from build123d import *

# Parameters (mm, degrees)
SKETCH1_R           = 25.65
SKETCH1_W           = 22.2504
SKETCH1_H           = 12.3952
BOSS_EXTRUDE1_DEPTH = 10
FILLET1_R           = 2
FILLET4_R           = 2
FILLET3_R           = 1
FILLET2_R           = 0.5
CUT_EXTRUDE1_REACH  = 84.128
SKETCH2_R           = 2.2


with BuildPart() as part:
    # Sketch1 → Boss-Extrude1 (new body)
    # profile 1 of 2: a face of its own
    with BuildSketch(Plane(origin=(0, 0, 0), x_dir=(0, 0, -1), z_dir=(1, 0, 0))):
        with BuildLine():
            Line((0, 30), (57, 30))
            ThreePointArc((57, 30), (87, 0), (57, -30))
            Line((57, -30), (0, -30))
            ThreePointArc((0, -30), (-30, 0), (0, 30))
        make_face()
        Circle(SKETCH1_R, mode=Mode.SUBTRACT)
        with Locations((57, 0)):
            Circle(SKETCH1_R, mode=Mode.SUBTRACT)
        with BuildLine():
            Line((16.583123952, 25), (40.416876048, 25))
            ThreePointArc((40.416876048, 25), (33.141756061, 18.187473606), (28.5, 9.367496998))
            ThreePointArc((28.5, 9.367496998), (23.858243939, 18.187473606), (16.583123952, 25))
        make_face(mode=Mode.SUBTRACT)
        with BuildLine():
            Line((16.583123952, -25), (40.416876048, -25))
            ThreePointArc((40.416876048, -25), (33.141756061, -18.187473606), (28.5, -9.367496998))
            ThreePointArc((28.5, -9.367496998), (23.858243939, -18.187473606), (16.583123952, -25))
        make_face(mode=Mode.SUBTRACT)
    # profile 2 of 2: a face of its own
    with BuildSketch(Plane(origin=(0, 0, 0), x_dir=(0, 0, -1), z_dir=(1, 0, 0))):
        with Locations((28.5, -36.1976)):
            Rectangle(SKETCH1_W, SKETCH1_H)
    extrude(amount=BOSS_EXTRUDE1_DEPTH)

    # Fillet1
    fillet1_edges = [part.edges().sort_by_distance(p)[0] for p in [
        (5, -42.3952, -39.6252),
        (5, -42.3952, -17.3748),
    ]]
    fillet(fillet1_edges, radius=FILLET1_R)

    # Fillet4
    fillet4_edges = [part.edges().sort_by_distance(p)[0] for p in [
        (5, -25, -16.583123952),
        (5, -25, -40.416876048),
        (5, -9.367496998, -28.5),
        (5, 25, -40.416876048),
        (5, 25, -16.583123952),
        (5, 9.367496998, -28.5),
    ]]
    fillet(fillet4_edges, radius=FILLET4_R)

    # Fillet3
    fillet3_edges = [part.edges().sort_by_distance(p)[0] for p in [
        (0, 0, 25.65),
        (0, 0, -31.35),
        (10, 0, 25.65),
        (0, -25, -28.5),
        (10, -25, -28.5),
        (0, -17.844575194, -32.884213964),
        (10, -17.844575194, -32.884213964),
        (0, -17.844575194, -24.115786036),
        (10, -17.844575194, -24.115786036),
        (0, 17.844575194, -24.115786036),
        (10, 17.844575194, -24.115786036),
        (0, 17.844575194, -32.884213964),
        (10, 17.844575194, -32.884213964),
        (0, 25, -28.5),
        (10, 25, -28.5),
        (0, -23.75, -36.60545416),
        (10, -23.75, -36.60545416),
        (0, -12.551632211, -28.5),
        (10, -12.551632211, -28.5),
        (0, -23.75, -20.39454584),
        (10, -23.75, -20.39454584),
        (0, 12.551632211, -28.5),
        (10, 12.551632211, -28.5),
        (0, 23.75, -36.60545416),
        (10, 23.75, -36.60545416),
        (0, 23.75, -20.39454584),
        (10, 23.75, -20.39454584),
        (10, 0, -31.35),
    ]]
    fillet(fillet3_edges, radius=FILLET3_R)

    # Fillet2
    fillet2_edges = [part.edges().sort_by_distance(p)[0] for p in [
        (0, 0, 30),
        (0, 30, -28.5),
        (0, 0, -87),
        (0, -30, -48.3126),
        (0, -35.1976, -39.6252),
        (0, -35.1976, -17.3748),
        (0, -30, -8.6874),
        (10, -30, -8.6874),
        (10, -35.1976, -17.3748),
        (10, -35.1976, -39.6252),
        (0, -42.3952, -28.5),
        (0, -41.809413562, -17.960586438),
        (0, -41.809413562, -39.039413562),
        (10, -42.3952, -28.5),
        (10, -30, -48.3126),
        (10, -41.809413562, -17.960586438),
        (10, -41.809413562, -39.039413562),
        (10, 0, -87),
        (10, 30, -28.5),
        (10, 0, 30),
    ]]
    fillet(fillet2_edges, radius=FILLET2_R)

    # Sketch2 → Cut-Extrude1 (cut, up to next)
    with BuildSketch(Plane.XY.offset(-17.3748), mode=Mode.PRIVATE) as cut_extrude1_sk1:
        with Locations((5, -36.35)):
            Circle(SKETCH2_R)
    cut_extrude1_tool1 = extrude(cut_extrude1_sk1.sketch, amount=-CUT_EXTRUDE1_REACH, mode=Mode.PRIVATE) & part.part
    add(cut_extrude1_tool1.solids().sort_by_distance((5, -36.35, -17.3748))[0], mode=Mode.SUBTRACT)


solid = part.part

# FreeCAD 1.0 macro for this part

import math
import FreeCAD as App
import Part
import Sketcher
Q = App.Units.Quantity


def edges_at(feature, points):
    """Names of the edges that pass closest to the given points."""
    edges = feature.Shape.Edges
    near = lambda p: min(range(len(edges)), key=lambda i: edges[i].distToShape(Part.Vertex(*p))[0])
    return sorted({f"Edge{near(p) + 1}" for p in points})

doc = App.newDocument("Part")
body = doc.addObject("PartDesign::Body", "Body")

# Sketch on YZ plane
sketch1 = doc.addObject("Sketcher::SketchObject", "Sketch")
body.addObject(sketch1)
sketch1.AttachmentSupport = (doc.YZ_Plane, [""])
sketch1.MapMode = "FlatFace"
sketch1.addGeometry([
    Part.LineSegment(App.Vector(30, -57, 0), App.Vector(30, 0, 0)),  # 0
    Part.ArcOfCircle(Part.Circle(App.Vector(0, 0, 0), App.Vector(0, 0, 1), 30), math.radians(0), math.radians(180)),  # 1
    Part.LineSegment(App.Vector(-30, 0, 0), App.Vector(-30, -17, 0)),  # 2
    Part.LineSegment(App.Vector(-30, -17, 0), App.Vector(-42, -17, 0)),  # 3
    Part.LineSegment(App.Vector(-42, -17, 0), App.Vector(-42, -40, 0)),  # 4
    Part.LineSegment(App.Vector(-42, -40, 0), App.Vector(-30, -40, 0)),  # 5
    Part.LineSegment(App.Vector(-30, -40, 0), App.Vector(-30, -57, 0)),  # 6
    Part.ArcOfCircle(Part.Circle(App.Vector(0, -57, 0), App.Vector(0, 0, 1), 30), math.radians(180), math.radians(360)),  # 7
    Part.ArcOfCircle(Part.Circle(App.Vector(0, 0, 0), App.Vector(0, 0, 1), 30), math.radians(-146), math.radians(-108)),  # 8
    Part.ArcOfCircle(Part.Circle(App.Vector(0, -57, 0), App.Vector(0, 0, 1), 30), math.radians(108), math.radians(146)),  # 9
    Part.LineSegment(App.Vector(-25, -40, 0), App.Vector(-25, -17, 0)),  # 10
    Part.Circle(App.Vector(0, -57, 0), App.Vector(0, 0, 1), 26),  # 11
    Part.Circle(App.Vector(0, 0, 0), App.Vector(0, 0, 1), 26),  # 12
    Part.LineSegment(App.Vector(25, -17, 0), App.Vector(25, -40, 0)),  # 13
    Part.ArcOfCircle(Part.Circle(App.Vector(0, -57, 0), App.Vector(0, 0, 1), 30), math.radians(34), math.radians(72)),  # 14
    Part.ArcOfCircle(Part.Circle(App.Vector(0, 0, 0), App.Vector(0, 0, 1), 30), math.radians(-72), math.radians(-34)),  # 15
], False)
sketch1.addConstraint([
    Sketcher.Constraint("Tangent", 0, 2, 1, 1),
    Sketcher.Constraint("Tangent", 1, 2, 2, 1),
    Sketcher.Constraint("Coincident", 2, 2, 3, 1),
    Sketcher.Constraint("Coincident", 3, 2, 4, 1),
    Sketcher.Constraint("Coincident", 4, 2, 5, 1),
    Sketcher.Constraint("Coincident", 5, 2, 6, 1),
    Sketcher.Constraint("Tangent", 6, 2, 7, 1),
    Sketcher.Constraint("Tangent", 7, 2, 0, 1),
    Sketcher.Constraint("Coincident", 8, 2, 9, 1),
    Sketcher.Constraint("Coincident", 9, 2, 10, 1),
    Sketcher.Constraint("Coincident", 10, 2, 8, 1),
    Sketcher.Constraint("Coincident", 13, 2, 14, 1),
    Sketcher.Constraint("Coincident", 14, 2, 15, 1),
    Sketcher.Constraint("Coincident", 15, 2, 13, 1),
    Sketcher.Constraint("Vertical", 0),
    Sketcher.Constraint("Vertical", 2),
    Sketcher.Constraint("Horizontal", 3),
    Sketcher.Constraint("Vertical", 4),
    Sketcher.Constraint("Horizontal", 5),
    Sketcher.Constraint("Vertical", 6),
    Sketcher.Constraint("Vertical", 10),
    Sketcher.Constraint("Vertical", 13),
    Sketcher.Constraint("Coincident", 1, 3, -1, 1),
    Sketcher.Constraint("Coincident", 8, 3, -1, 1),
    Sketcher.Constraint("Coincident", 12, 3, -1, 1),
    Sketcher.Constraint("Coincident", 15, 3, -1, 1),
    Sketcher.Constraint("Coincident", 9, 3, 7, 3),
    Sketcher.Constraint("Coincident", 11, 3, 7, 3),
    Sketcher.Constraint("Coincident", 14, 3, 7, 3),
    Sketcher.Constraint("Equal", 1, 7),
    Sketcher.Constraint("Equal", 7, 8),
    Sketcher.Constraint("Equal", 8, 9),
    Sketcher.Constraint("Equal", 11, 12),
    Sketcher.Constraint("Equal", 9, 14),
    Sketcher.Constraint("Equal", 14, 15),
    Sketcher.Constraint("Horizontal", 9, 2, 13, 2),
    Sketcher.Constraint("Equal", 2, 6),
    Sketcher.Constraint("Radius", 1, Q("30 mm")),
    Sketcher.Constraint("Diameter", 11, Q("51.3 mm")),
    Sketcher.Constraint("DistanceY", 0, 1, 0, 2, Q("57 mm")),
    Sketcher.Constraint("DistanceX", 9, 2, -1, 1, Q("25 mm")),
    Sketcher.Constraint("DistanceX", 3, 2, 3, 1, Q("12.3952 mm")),
    Sketcher.Constraint("DistanceY", 2, 2, 2, 1, Q("17.3748 mm")),
])
pad1 = doc.addObject("PartDesign::Pad", "Pad")
body.addObject(pad1)
pad1.Profile = sketch1
pad1.Length = 10
doc.recompute()

fillet = doc.addObject("PartDesign::Fillet", "Fillet")
body.addObject(fillet)
fillet.Base = (pad1, edges_at(pad1, [(5, -42.395, -39.625), (5, -42.395, -17.375)]))
fillet.Radius = 2
doc.recompute()

fillet2 = doc.addObject("PartDesign::Fillet", "Fillet001")
body.addObject(fillet2)
fillet2.Base = (fillet, edges_at(fillet, [
    (5, -25, -16.583),
    (5, -25, -40.417),
    (5, -9.367, -28.5),
    (5, 25, -40.417),
    (5, 25, -16.583),
    (5, 9.367, -28.5),
]))
fillet2.Radius = 2
doc.recompute()

fillet3 = doc.addObject("PartDesign::Fillet", "Fillet002")
body.addObject(fillet3)
fillet3.Base = (fillet2, edges_at(fillet2, [
    (0, 0, 25.65),
    (0, 0, -31.35),
    (10, 0, 25.65),
    (0, -25, -28.5),
    (10, -25, -28.5),
    (0, -17.845, -32.884),
    (10, -17.845, -32.884),
    (0, -17.845, -24.116),
    (10, -17.845, -24.116),
    (0, 17.845, -24.116),
    (10, 17.845, -24.116),
    (0, 17.845, -32.884),
    (10, 17.845, -32.884),
    (0, 25, -28.5),
    (10, 25, -28.5),
    (0, -23.75, -36.605),
    (10, -23.75, -36.605),
    (0, -12.552, -28.5),
    (10, -12.552, -28.5),
    (0, -23.75, -20.395),
    (10, -23.75, -20.395),
    (0, 12.552, -28.5),
    (10, 12.552, -28.5),
    (0, 23.75, -36.605),
    (10, 23.75, -36.605),
    (0, 23.75, -20.395),
    (10, 23.75, -20.395),
    (10, 0, -31.35),
]))
fillet3.Radius = 1
doc.recompute()

fillet4 = doc.addObject("PartDesign::Fillet", "Fillet003")
body.addObject(fillet4)
fillet4.Base = (fillet3, edges_at(fillet3, [
    (0, 0, 30),
    (0, 30, -28.5),
    (0, 0, -87),
    (0, -30, -48.313),
    (0, -35.198, -39.625),
    (0, -35.198, -17.375),
    (0, -30, -8.687),
    (10, -30, -8.687),
    (10, -35.198, -17.375),
    (10, -35.198, -39.625),
    (0, -42.395, -28.5),
    (0, -41.809, -17.961),
    (0, -41.809, -39.039),
    (10, -42.395, -28.5),
    (10, -30, -48.313),
    (10, -41.809, -17.961),
    (10, -41.809, -39.039),
    (10, 0, -87),
    (10, 30, -28.5),
    (10, 0, 30),
]))
fillet4.Radius = 0.5

# Sketch on XY plane
sketch2 = doc.addObject("Sketcher::SketchObject", "Sketch001")
body.addObject(sketch2)
sketch2.AttachmentSupport = (doc.XY_Plane, [""])
sketch2.MapMode = "FlatFace"
sketch2.AttachmentOffset = App.Placement(App.Vector(0, 0, -17.3748), App.Rotation())
sketch2.addGeometry(Part.Circle(App.Vector(5, -36.4, 0), App.Vector(0, 0, 1), 2.2), False)
sketch2.addConstraint([
    Sketcher.Constraint("Diameter", 0, Q("4.4 mm")),
    Sketcher.Constraint("DistanceX", -1, 1, 0, 3, Q("5 mm")),
    Sketcher.Constraint("DistanceY", 0, 3, -1, 1, Q("36.35 mm")),
])
pocket1 = doc.addObject("PartDesign::Pocket", "Pocket")
body.addObject(pocket1)
pocket1.Profile = sketch2
pocket1.Type = "UpToFirst"

doc.recompute()
